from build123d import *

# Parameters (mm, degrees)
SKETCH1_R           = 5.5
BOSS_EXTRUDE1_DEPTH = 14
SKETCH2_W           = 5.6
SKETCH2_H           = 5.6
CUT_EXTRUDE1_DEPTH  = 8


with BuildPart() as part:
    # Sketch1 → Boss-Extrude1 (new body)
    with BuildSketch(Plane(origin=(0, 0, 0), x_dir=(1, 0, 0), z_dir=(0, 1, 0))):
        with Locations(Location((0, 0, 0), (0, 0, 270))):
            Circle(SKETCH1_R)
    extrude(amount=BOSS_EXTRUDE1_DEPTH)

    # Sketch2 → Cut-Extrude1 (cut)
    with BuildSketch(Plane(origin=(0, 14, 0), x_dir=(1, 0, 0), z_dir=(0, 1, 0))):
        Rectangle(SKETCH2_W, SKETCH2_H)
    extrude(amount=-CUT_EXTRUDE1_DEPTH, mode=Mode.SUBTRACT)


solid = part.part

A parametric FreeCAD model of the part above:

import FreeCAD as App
import Part
import Sketcher

V = App.Vector
Q = App.Units.Quantity


def add_polygon(sketch, points):
    """Adds a closed chain of lines whose ends are joined by coincident constraints."""
    first, n = sketch.GeometryCount, len(points)
    for a, b in zip(points, points[1:] + points[:1]):
        sketch.addGeometry(Part.LineSegment(App.Vector(*a, 0), App.Vector(*b, 0)), False)
    for i in range(n):
        sketch.addConstraint(Sketcher.Constraint("Coincident", first + i, 2, first + (i + 1) % n, 1))

doc = App.newDocument("Part")
body = doc.addObject("PartDesign::Body", "Body")

# Sketch on XZ plane
sketch1 = doc.addObject("Sketcher::SketchObject", "Sketch")
body.addObject(sketch1)
sketch1.AttachmentSupport = (doc.XZ_Plane, [""])
sketch1.MapMode = "FlatFace"
sketch1.addGeometry(Part.Circle(V(0, 0, 0), V(0, 0, 1), 6), False)
sketch1.addConstraint([
    Sketcher.Constraint("Coincident", 0, 3, -1, 1),
    Sketcher.Constraint("Diameter", 0, Q("11 mm")),
])
pad1 = doc.addObject("PartDesign::Pad", "Pad")
body.addObject(pad1)
pad1.Profile = sketch1
pad1.Length = 14
pad1.Reversed = True

# Sketch on XZ plane
sketch2 = doc.addObject("Sketcher::SketchObject", "Sketch001")
body.addObject(sketch2)
sketch2.AttachmentSupport = (doc.XZ_Plane, [""])
sketch2.MapMode = "FlatFace"
sketch2.AttachmentOffset = App.Placement(V(0, 0, -14), App.Rotation())
add_polygon(sketch2, [(-3, -3), (-3, 3), (3, 3), (3, -3)])  # lines 0-3
sketch2.addConstraint([
    Sketcher.Constraint("Vertical", 0),
    Sketcher.Constraint("Horizontal", 1),
    Sketcher.Constraint("Vertical", 2),
    Sketcher.Constraint("Horizontal", 3),
    Sketcher.Constraint("Symmetric", 0, 2, 2, 2, -1, 1),
    Sketcher.Constraint("Equal", 3, 0),
    Sketcher.Constraint("DistanceX", 1, 1, 1, 2, Q("5.6 mm")),
])
pocket1 = doc.addObject("PartDesign::Pocket", "Pocket")
body.addObject(pocket1)
pocket1.Profile = sketch2
pocket1.Length = 8
pocket1.Reversed = True

doc.recompute()
